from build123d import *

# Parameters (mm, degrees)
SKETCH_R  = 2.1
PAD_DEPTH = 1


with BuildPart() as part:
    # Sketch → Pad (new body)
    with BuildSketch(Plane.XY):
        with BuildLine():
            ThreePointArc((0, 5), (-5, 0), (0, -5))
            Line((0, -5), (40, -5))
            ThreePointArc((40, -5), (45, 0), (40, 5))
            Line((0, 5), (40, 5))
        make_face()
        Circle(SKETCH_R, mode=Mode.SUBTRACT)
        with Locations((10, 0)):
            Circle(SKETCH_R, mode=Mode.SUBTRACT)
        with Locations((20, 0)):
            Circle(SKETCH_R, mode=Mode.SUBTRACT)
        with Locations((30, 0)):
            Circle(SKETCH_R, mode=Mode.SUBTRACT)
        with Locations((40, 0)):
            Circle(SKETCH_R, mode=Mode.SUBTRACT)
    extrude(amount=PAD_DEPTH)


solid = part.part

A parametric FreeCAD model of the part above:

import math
import FreeCAD as App
import Part
import Sketcher

V = App.Vector

doc = App.newDocument("Part")
params = doc.addObject("Spreadsheet::Sheet", "Params")
for row, (alias, value) in enumerate([
    ("sketch1_radius", "5 mm"),
    ("sketch1_diameter", "4.2 mm"),
    ("sketch1_width", "40 mm"),
    ("pad1_length", "1 mm"),
], start=1):
    params.set(f"A{row}", alias)
    params.set(f"B{row}", "=" + value)
    params.setAlias(f"B{row}", alias)

body = doc.addObject("PartDesign::Body", "Body")

sketch1 = body.newObject("Sketcher::SketchObject", "Sketch")
sketch1.AttachmentSupport = (doc.getObject("XY_Plane"), [""])
sketch1.MapMode = "FlatFace"
sketch1.addGeometry(Part.ArcOfCircle(Part.Circle(V(0, 0, 0), V(0, 0, 1), 5), math.radians(90), math.radians(270)), False)
sketch1.addGeometry(Part.LineSegment(V(0, -5, 0), V(40, -5, 0)), False)
sketch1.addGeometry(Part.ArcOfCircle(Part.Circle(V(40, 0, 0), V(0, 0, 1), 5), math.radians(-90), math.radians(90)), False)
sketch1.addGeometry(Part.LineSegment(V(40, 5, 0), V(0, 5, 0)), False)
sketch1.addGeometry(Part.Circle(V(0, 0, 0), V(0, 0, 1), 2.1), False)
sketch1.addGeometry(Part.Circle(V(10, 0, 0), V(0, 0, 1), 2.1), False)
sketch1.addGeometry(Part.Circle(V(20, 0, 0), V(0, 0, 1), 2.1), False)
sketch1.addGeometry(Part.Circle(V(30, 0, 0), V(0, 0, 1), 2.1), False)
sketch1.addGeometry(Part.Circle(V(40, 0, 0), V(0, 0, 1), 2.1), False)
sketch1.addConstraint(Sketcher.Constraint("Tangent", 0, 2, 1, 1))
sketch1.addConstraint(Sketcher.Constraint("Tangent", 1, 2, 2, 1))
sketch1.addConstraint(Sketcher.Constraint("Tangent", 2, 2, 3, 1))
sketch1.addConstraint(Sketcher.Constraint("Tangent", 3, 2, 0, 1))
sketch1.addConstraint(Sketcher.Constraint("Horizontal", 1))
sketch1.addConstraint(Sketcher.Constraint("Horizontal", 3))
sketch1.addConstraint(Sketcher.Constraint("Coincident", 0, 3, -1, 1))
sketch1.addConstraint(Sketcher.Constraint("Coincident", 4, 3, -1, 1))
sketch1.addConstraint(Sketcher.Constraint("Coincident", 8, 3, 2, 3))
sketch1.addConstraint(Sketcher.Constraint("Equal", 4, 5))
sketch1.addConstraint(Sketcher.Constraint("Equal", 5, 6))
sketch1.addConstraint(Sketcher.Constraint("Equal", 6, 7))
sketch1.addConstraint(Sketcher.Constraint("Equal", 7, 8))
sketch1.addConstraint(Sketcher.Constraint("PointOnObject", 5, 3, -1))
sketch1.addConstraint(Sketcher.Constraint("PointOnObject", 6, 3, -1))
sketch1.addConstraint(Sketcher.Constraint("PointOnObject", 7, 3, -1))
sketch1.addConstraint(Sketcher.Constraint("Radius", 0, 5.0))
sketch1.addConstraint(Sketcher.Constraint("Diameter", 4, 4.2))
sketch1.addConstraint(Sketcher.Constraint("DistanceX", 1, 1, 1, 2, 40.0))
sketch1.addConstraint(Sketcher.Constraint("DistanceX", -1, 1, 5, 3, 10.0))
sketch1.addConstraint(Sketcher.Constraint("DistanceX", -1, 1, 6, 3, 20.0))
sketch1.addConstraint(Sketcher.Constraint("DistanceX", -1, 1, 7, 3, 30.0))
sketch1.setExpression("Constraints[16]", "Params.sketch1_radius")
sketch1.setExpression("Constraints[17]", "Params.sketch1_diameter")
sketch1.setExpression("Constraints[18]", "Params.sketch1_width")
pad1 = body.newObject("PartDesign::Pad", "Pad")
pad1.Profile = sketch1
pad1.setExpression("Length", "Params.pad1_length")

doc.recompute()
